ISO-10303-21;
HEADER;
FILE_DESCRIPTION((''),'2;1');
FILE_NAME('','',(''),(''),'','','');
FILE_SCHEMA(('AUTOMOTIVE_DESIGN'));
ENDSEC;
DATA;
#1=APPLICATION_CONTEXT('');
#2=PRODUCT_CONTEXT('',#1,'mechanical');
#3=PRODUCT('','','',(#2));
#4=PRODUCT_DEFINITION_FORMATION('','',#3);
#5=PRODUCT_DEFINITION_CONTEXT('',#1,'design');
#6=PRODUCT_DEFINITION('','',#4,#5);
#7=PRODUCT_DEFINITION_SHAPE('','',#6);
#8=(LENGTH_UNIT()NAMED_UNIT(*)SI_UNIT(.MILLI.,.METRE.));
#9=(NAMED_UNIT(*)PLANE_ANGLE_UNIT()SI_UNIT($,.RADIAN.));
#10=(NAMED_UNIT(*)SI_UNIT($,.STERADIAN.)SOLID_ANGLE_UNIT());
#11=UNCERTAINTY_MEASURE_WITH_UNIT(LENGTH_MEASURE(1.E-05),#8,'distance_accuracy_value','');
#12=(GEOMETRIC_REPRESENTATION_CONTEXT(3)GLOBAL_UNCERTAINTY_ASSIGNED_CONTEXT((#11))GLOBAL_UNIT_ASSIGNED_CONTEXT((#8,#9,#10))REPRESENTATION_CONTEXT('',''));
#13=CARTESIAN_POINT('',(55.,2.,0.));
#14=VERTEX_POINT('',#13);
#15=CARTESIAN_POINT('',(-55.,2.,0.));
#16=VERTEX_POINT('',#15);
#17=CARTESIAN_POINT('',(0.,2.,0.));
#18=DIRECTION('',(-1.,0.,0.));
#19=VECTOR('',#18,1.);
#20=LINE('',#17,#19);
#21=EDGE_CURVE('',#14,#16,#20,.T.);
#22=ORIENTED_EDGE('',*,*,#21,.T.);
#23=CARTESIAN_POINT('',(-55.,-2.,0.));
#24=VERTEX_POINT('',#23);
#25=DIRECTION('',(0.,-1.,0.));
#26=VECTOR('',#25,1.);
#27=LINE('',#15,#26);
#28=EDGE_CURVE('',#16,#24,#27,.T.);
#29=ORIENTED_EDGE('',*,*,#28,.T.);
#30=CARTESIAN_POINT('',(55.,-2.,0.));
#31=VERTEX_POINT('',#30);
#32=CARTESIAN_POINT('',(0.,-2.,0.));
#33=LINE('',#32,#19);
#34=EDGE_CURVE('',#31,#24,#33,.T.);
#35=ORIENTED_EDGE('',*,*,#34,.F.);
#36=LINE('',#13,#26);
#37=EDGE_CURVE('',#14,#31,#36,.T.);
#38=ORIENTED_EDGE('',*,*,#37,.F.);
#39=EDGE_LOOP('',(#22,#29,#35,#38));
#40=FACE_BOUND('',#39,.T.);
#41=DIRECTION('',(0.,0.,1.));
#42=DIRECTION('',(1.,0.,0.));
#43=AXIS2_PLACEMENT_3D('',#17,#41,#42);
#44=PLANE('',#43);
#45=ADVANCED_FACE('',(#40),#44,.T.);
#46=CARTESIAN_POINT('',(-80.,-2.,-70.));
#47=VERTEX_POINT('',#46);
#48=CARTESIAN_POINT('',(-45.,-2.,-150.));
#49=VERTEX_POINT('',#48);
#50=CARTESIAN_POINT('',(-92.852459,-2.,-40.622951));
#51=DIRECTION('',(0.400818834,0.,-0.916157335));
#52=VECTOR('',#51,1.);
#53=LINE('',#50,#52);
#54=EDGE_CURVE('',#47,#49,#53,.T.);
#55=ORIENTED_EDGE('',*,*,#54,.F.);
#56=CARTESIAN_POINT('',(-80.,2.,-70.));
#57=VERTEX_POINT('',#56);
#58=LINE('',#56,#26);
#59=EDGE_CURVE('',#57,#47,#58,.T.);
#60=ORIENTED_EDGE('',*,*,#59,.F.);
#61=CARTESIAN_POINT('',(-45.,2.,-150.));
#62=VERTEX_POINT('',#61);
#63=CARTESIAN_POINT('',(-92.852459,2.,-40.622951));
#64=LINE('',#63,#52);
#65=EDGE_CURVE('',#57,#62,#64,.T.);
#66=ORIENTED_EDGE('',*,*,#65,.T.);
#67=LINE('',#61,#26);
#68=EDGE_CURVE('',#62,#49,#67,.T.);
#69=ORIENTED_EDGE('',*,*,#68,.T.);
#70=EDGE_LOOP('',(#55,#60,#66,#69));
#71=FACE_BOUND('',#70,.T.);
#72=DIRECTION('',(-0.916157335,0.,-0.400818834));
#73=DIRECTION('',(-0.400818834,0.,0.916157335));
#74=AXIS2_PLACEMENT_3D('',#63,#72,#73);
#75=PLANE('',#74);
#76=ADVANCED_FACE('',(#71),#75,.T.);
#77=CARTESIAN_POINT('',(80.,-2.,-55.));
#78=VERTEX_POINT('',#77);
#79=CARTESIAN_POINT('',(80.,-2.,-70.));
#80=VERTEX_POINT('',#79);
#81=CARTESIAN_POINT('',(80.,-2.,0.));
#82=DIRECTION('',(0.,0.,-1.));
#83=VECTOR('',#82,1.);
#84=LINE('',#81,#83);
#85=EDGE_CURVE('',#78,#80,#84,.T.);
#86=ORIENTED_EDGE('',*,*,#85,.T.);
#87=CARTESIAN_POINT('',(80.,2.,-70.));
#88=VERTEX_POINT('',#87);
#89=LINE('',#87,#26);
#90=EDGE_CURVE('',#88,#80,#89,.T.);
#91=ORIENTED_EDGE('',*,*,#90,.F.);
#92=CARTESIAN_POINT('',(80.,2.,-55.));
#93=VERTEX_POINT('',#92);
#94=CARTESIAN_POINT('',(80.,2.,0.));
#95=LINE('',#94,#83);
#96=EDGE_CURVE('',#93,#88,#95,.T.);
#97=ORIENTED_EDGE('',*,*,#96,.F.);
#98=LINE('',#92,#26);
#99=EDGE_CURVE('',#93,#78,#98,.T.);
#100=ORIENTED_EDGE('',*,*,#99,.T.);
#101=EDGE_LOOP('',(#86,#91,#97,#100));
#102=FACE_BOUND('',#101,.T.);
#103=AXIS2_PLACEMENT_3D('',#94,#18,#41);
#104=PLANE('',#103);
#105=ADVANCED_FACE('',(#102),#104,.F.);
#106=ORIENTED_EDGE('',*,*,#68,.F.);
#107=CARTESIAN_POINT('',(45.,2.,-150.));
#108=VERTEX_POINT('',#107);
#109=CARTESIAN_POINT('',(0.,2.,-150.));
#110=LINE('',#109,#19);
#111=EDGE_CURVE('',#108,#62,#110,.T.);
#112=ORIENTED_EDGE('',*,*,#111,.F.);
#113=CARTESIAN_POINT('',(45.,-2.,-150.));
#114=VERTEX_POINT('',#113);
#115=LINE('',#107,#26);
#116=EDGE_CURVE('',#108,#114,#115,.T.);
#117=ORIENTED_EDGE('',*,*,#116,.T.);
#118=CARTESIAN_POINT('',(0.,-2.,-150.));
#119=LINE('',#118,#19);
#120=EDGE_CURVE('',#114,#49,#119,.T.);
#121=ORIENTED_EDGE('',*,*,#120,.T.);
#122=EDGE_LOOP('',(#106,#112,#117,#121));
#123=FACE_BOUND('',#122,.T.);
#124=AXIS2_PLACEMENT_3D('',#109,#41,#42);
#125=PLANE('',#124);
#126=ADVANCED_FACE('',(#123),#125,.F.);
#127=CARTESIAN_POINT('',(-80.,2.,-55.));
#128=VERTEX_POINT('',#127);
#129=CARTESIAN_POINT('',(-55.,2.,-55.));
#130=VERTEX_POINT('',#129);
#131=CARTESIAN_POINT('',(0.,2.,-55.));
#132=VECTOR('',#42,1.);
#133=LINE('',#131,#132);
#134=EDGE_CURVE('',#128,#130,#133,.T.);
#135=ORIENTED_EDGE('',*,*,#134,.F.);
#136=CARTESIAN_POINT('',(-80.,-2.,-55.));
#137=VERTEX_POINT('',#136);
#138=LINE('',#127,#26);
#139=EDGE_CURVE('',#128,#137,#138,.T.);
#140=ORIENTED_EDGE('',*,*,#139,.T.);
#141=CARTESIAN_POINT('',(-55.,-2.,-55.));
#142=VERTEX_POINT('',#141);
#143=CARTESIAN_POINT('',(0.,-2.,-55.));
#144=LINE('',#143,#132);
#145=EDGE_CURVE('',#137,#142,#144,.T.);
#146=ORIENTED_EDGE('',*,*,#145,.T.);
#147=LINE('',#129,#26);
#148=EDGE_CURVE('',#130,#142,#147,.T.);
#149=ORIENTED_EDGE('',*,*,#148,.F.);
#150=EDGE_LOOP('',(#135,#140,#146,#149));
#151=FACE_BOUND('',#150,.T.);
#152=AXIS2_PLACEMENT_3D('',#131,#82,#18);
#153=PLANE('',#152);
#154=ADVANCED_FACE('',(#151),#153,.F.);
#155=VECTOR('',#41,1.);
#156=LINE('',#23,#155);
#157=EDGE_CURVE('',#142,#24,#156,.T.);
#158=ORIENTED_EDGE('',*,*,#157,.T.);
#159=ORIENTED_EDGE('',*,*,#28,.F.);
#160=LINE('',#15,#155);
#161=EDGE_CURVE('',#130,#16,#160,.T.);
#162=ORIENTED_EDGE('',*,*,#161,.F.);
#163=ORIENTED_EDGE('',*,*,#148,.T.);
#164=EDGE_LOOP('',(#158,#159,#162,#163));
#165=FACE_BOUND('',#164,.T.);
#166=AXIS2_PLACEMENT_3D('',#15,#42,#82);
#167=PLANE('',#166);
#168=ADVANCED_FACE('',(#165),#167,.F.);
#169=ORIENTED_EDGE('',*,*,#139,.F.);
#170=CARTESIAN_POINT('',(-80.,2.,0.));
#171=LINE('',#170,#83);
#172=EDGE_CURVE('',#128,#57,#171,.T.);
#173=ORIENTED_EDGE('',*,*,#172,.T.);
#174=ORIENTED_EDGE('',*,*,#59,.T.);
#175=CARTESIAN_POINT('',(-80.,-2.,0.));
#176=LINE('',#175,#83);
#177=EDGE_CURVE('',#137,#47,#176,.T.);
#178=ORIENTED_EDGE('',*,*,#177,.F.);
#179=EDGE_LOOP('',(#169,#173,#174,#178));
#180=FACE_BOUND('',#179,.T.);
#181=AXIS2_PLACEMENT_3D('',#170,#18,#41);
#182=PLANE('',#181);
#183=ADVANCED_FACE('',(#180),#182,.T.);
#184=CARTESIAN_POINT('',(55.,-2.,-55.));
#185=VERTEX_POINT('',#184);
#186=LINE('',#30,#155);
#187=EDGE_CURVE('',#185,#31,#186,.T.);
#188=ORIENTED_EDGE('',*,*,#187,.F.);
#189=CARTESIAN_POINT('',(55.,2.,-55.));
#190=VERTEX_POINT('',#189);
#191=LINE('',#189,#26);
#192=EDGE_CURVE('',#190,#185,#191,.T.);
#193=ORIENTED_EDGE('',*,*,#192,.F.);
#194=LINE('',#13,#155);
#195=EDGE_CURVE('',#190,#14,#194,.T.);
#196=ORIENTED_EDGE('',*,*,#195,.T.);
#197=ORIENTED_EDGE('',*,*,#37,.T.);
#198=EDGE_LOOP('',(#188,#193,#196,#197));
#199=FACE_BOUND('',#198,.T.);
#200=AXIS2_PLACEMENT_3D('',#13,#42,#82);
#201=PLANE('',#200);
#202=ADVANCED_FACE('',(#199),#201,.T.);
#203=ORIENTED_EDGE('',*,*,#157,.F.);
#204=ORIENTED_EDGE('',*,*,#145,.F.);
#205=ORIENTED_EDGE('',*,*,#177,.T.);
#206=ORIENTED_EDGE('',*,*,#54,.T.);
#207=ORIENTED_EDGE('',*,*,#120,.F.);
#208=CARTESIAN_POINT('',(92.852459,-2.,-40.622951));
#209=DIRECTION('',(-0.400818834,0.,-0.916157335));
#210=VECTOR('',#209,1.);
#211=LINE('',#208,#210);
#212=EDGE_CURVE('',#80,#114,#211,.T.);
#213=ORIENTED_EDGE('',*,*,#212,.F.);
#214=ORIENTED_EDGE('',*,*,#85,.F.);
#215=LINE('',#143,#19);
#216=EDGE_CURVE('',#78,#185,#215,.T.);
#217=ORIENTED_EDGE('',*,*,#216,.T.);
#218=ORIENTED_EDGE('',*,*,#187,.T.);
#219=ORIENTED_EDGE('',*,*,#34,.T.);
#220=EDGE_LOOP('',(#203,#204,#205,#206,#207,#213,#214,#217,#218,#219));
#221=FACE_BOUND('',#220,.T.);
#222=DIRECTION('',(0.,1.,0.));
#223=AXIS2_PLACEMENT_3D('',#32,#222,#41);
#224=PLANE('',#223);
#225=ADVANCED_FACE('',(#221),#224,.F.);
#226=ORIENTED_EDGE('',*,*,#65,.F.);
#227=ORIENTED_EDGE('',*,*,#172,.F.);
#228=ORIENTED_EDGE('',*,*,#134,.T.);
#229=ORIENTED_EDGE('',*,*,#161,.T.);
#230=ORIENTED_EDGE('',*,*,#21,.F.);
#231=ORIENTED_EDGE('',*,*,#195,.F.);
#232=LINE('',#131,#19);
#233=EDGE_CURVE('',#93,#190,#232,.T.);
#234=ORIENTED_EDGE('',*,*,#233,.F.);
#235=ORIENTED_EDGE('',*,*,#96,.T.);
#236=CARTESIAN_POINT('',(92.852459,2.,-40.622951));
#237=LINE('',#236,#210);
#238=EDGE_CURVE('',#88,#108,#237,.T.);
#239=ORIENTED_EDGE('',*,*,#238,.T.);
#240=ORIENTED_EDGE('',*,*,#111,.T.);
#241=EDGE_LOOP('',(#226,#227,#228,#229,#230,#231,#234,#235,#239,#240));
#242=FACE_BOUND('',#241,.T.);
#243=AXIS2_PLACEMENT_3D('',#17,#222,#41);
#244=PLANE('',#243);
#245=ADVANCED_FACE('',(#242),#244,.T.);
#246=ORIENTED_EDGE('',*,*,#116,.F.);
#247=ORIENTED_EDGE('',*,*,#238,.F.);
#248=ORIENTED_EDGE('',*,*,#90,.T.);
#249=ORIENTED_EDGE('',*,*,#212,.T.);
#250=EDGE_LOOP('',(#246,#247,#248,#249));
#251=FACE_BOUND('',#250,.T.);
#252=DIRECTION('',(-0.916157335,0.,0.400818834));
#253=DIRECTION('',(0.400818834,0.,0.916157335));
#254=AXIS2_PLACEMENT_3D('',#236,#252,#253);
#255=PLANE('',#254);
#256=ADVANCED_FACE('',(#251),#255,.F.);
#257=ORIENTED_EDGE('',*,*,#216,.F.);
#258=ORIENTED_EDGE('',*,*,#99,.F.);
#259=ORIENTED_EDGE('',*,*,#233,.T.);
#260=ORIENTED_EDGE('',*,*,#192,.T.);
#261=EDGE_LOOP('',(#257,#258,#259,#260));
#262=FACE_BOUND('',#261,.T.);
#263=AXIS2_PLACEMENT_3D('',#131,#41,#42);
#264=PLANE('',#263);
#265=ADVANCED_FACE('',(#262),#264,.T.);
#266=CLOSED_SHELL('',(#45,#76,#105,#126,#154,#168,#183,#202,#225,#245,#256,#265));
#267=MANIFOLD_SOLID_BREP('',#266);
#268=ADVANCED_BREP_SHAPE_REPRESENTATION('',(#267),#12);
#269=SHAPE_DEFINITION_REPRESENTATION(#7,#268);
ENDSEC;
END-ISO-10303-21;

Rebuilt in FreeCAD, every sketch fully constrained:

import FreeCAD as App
import Part
import Sketcher

V = App.Vector

doc = App.newDocument("Part")
body = doc.addObject("PartDesign::Body", "Body")

sketch1 = body.newObject("Sketcher::SketchObject", "Sketch")
sketch1.AttachmentSupport = (doc.getObject("XZ_Plane"), [""])
sketch1.MapMode = "FlatFace"
sketch1.addGeometry(Part.LineSegment(V(-55, 0, 0), V(55, 0, 0)), False)
sketch1.addGeometry(Part.LineSegment(V(55, 0, 0), V(55, -55, 0)), False)
sketch1.addGeometry(Part.LineSegment(V(55, -55, 0), V(80, -55, 0)), False)
sketch1.addGeometry(Part.LineSegment(V(80, -55, 0), V(80, -70, 0)), False)
sketch1.addGeometry(Part.LineSegment(V(80, -70, 0), V(45, -150, 0)), False)
sketch1.addGeometry(Part.LineSegment(V(45, -150, 0), V(-45, -150, 0)), False)
sketch1.addGeometry(Part.LineSegment(V(-45, -150, 0), V(-80, -70, 0)), False)
sketch1.addGeometry(Part.LineSegment(V(-80, -70, 0), V(-80, -55, 0)), False)
sketch1.addGeometry(Part.LineSegment(V(-80, -55, 0), V(-55, -55, 0)), False)
sketch1.addGeometry(Part.LineSegment(V(-55, -55, 0), V(-55, 0, 0)), False)
sketch1.addConstraint(Sketcher.Constraint("Coincident", 0, 2, 1, 1))
sketch1.addConstraint(Sketcher.Constraint("Coincident", 1, 2, 2, 1))
sketch1.addConstraint(Sketcher.Constraint("Coincident", 2, 2, 3, 1))
sketch1.addConstraint(Sketcher.Constraint("Coincident", 3, 2, 4, 1))
sketch1.addConstraint(Sketcher.Constraint("Coincident", 4, 2, 5, 1))
sketch1.addConstraint(Sketcher.Constraint("Coincident", 5, 2, 6, 1))
sketch1.addConstraint(Sketcher.Constraint("Coincident", 6, 2, 7, 1))
sketch1.addConstraint(Sketcher.Constraint("Coincident", 7, 2, 8, 1))
sketch1.addConstraint(Sketcher.Constraint("Coincident", 8, 2, 9, 1))
sketch1.addConstraint(Sketcher.Constraint("Coincident", 9, 2, 0, 1))
sketch1.addConstraint(Sketcher.Constraint("Horizontal", 0))
sketch1.addConstraint(Sketcher.Constraint("Vertical", 1))
sketch1.addConstraint(Sketcher.Constraint("Horizontal", 2))
sketch1.addConstraint(Sketcher.Constraint("Vertical", 3))
sketch1.addConstraint(Sketcher.Constraint("Horizontal", 5))
sketch1.addConstraint(Sketcher.Constraint("Vertical", 7))
sketch1.addConstraint(Sketcher.Constraint("Horizontal", 8))
sketch1.addConstraint(Sketcher.Constraint("Vertical", 9))
sketch1.addConstraint(Sketcher.Constraint("Symmetric", 0, 2, 9, 2, -1, 1))
sketch1.addConstraint(Sketcher.Constraint("Symmetric", 3, 2, 6, 2, -2))
sketch1.addConstraint(Sketcher.Constraint("Horizontal", 2, 2, 7, 2))
sketch1.addConstraint(Sketcher.Constraint("Equal", 4, 6))
sketch1.addConstraint(Sketcher.Constraint("DistanceX", 0, 1, 0, 2, 110.0))
sketch1.addConstraint(Sketcher.Constraint("DistanceX", 2, 1, 2, 2, 25.0))
sketch1.addConstraint(Sketcher.Constraint("DistanceX", 5, 2, 5, 1, 90.0))
sketch1.addConstraint(Sketcher.Constraint("DistanceY", 1, 2, 1, 1, 55.0))
sketch1.addConstraint(Sketcher.Constraint("DistanceY", 3, 2, 3, 1, 15.0))
sketch1.addConstraint(Sketcher.Constraint("DistanceY", 4, 2, -1, 1, 150.0))
pad1 = body.newObject("PartDesign::Pad", "Pad")
pad1.Profile = sketch1
pad1.Length = 4
pad1.Midplane = True

doc.recompute()
